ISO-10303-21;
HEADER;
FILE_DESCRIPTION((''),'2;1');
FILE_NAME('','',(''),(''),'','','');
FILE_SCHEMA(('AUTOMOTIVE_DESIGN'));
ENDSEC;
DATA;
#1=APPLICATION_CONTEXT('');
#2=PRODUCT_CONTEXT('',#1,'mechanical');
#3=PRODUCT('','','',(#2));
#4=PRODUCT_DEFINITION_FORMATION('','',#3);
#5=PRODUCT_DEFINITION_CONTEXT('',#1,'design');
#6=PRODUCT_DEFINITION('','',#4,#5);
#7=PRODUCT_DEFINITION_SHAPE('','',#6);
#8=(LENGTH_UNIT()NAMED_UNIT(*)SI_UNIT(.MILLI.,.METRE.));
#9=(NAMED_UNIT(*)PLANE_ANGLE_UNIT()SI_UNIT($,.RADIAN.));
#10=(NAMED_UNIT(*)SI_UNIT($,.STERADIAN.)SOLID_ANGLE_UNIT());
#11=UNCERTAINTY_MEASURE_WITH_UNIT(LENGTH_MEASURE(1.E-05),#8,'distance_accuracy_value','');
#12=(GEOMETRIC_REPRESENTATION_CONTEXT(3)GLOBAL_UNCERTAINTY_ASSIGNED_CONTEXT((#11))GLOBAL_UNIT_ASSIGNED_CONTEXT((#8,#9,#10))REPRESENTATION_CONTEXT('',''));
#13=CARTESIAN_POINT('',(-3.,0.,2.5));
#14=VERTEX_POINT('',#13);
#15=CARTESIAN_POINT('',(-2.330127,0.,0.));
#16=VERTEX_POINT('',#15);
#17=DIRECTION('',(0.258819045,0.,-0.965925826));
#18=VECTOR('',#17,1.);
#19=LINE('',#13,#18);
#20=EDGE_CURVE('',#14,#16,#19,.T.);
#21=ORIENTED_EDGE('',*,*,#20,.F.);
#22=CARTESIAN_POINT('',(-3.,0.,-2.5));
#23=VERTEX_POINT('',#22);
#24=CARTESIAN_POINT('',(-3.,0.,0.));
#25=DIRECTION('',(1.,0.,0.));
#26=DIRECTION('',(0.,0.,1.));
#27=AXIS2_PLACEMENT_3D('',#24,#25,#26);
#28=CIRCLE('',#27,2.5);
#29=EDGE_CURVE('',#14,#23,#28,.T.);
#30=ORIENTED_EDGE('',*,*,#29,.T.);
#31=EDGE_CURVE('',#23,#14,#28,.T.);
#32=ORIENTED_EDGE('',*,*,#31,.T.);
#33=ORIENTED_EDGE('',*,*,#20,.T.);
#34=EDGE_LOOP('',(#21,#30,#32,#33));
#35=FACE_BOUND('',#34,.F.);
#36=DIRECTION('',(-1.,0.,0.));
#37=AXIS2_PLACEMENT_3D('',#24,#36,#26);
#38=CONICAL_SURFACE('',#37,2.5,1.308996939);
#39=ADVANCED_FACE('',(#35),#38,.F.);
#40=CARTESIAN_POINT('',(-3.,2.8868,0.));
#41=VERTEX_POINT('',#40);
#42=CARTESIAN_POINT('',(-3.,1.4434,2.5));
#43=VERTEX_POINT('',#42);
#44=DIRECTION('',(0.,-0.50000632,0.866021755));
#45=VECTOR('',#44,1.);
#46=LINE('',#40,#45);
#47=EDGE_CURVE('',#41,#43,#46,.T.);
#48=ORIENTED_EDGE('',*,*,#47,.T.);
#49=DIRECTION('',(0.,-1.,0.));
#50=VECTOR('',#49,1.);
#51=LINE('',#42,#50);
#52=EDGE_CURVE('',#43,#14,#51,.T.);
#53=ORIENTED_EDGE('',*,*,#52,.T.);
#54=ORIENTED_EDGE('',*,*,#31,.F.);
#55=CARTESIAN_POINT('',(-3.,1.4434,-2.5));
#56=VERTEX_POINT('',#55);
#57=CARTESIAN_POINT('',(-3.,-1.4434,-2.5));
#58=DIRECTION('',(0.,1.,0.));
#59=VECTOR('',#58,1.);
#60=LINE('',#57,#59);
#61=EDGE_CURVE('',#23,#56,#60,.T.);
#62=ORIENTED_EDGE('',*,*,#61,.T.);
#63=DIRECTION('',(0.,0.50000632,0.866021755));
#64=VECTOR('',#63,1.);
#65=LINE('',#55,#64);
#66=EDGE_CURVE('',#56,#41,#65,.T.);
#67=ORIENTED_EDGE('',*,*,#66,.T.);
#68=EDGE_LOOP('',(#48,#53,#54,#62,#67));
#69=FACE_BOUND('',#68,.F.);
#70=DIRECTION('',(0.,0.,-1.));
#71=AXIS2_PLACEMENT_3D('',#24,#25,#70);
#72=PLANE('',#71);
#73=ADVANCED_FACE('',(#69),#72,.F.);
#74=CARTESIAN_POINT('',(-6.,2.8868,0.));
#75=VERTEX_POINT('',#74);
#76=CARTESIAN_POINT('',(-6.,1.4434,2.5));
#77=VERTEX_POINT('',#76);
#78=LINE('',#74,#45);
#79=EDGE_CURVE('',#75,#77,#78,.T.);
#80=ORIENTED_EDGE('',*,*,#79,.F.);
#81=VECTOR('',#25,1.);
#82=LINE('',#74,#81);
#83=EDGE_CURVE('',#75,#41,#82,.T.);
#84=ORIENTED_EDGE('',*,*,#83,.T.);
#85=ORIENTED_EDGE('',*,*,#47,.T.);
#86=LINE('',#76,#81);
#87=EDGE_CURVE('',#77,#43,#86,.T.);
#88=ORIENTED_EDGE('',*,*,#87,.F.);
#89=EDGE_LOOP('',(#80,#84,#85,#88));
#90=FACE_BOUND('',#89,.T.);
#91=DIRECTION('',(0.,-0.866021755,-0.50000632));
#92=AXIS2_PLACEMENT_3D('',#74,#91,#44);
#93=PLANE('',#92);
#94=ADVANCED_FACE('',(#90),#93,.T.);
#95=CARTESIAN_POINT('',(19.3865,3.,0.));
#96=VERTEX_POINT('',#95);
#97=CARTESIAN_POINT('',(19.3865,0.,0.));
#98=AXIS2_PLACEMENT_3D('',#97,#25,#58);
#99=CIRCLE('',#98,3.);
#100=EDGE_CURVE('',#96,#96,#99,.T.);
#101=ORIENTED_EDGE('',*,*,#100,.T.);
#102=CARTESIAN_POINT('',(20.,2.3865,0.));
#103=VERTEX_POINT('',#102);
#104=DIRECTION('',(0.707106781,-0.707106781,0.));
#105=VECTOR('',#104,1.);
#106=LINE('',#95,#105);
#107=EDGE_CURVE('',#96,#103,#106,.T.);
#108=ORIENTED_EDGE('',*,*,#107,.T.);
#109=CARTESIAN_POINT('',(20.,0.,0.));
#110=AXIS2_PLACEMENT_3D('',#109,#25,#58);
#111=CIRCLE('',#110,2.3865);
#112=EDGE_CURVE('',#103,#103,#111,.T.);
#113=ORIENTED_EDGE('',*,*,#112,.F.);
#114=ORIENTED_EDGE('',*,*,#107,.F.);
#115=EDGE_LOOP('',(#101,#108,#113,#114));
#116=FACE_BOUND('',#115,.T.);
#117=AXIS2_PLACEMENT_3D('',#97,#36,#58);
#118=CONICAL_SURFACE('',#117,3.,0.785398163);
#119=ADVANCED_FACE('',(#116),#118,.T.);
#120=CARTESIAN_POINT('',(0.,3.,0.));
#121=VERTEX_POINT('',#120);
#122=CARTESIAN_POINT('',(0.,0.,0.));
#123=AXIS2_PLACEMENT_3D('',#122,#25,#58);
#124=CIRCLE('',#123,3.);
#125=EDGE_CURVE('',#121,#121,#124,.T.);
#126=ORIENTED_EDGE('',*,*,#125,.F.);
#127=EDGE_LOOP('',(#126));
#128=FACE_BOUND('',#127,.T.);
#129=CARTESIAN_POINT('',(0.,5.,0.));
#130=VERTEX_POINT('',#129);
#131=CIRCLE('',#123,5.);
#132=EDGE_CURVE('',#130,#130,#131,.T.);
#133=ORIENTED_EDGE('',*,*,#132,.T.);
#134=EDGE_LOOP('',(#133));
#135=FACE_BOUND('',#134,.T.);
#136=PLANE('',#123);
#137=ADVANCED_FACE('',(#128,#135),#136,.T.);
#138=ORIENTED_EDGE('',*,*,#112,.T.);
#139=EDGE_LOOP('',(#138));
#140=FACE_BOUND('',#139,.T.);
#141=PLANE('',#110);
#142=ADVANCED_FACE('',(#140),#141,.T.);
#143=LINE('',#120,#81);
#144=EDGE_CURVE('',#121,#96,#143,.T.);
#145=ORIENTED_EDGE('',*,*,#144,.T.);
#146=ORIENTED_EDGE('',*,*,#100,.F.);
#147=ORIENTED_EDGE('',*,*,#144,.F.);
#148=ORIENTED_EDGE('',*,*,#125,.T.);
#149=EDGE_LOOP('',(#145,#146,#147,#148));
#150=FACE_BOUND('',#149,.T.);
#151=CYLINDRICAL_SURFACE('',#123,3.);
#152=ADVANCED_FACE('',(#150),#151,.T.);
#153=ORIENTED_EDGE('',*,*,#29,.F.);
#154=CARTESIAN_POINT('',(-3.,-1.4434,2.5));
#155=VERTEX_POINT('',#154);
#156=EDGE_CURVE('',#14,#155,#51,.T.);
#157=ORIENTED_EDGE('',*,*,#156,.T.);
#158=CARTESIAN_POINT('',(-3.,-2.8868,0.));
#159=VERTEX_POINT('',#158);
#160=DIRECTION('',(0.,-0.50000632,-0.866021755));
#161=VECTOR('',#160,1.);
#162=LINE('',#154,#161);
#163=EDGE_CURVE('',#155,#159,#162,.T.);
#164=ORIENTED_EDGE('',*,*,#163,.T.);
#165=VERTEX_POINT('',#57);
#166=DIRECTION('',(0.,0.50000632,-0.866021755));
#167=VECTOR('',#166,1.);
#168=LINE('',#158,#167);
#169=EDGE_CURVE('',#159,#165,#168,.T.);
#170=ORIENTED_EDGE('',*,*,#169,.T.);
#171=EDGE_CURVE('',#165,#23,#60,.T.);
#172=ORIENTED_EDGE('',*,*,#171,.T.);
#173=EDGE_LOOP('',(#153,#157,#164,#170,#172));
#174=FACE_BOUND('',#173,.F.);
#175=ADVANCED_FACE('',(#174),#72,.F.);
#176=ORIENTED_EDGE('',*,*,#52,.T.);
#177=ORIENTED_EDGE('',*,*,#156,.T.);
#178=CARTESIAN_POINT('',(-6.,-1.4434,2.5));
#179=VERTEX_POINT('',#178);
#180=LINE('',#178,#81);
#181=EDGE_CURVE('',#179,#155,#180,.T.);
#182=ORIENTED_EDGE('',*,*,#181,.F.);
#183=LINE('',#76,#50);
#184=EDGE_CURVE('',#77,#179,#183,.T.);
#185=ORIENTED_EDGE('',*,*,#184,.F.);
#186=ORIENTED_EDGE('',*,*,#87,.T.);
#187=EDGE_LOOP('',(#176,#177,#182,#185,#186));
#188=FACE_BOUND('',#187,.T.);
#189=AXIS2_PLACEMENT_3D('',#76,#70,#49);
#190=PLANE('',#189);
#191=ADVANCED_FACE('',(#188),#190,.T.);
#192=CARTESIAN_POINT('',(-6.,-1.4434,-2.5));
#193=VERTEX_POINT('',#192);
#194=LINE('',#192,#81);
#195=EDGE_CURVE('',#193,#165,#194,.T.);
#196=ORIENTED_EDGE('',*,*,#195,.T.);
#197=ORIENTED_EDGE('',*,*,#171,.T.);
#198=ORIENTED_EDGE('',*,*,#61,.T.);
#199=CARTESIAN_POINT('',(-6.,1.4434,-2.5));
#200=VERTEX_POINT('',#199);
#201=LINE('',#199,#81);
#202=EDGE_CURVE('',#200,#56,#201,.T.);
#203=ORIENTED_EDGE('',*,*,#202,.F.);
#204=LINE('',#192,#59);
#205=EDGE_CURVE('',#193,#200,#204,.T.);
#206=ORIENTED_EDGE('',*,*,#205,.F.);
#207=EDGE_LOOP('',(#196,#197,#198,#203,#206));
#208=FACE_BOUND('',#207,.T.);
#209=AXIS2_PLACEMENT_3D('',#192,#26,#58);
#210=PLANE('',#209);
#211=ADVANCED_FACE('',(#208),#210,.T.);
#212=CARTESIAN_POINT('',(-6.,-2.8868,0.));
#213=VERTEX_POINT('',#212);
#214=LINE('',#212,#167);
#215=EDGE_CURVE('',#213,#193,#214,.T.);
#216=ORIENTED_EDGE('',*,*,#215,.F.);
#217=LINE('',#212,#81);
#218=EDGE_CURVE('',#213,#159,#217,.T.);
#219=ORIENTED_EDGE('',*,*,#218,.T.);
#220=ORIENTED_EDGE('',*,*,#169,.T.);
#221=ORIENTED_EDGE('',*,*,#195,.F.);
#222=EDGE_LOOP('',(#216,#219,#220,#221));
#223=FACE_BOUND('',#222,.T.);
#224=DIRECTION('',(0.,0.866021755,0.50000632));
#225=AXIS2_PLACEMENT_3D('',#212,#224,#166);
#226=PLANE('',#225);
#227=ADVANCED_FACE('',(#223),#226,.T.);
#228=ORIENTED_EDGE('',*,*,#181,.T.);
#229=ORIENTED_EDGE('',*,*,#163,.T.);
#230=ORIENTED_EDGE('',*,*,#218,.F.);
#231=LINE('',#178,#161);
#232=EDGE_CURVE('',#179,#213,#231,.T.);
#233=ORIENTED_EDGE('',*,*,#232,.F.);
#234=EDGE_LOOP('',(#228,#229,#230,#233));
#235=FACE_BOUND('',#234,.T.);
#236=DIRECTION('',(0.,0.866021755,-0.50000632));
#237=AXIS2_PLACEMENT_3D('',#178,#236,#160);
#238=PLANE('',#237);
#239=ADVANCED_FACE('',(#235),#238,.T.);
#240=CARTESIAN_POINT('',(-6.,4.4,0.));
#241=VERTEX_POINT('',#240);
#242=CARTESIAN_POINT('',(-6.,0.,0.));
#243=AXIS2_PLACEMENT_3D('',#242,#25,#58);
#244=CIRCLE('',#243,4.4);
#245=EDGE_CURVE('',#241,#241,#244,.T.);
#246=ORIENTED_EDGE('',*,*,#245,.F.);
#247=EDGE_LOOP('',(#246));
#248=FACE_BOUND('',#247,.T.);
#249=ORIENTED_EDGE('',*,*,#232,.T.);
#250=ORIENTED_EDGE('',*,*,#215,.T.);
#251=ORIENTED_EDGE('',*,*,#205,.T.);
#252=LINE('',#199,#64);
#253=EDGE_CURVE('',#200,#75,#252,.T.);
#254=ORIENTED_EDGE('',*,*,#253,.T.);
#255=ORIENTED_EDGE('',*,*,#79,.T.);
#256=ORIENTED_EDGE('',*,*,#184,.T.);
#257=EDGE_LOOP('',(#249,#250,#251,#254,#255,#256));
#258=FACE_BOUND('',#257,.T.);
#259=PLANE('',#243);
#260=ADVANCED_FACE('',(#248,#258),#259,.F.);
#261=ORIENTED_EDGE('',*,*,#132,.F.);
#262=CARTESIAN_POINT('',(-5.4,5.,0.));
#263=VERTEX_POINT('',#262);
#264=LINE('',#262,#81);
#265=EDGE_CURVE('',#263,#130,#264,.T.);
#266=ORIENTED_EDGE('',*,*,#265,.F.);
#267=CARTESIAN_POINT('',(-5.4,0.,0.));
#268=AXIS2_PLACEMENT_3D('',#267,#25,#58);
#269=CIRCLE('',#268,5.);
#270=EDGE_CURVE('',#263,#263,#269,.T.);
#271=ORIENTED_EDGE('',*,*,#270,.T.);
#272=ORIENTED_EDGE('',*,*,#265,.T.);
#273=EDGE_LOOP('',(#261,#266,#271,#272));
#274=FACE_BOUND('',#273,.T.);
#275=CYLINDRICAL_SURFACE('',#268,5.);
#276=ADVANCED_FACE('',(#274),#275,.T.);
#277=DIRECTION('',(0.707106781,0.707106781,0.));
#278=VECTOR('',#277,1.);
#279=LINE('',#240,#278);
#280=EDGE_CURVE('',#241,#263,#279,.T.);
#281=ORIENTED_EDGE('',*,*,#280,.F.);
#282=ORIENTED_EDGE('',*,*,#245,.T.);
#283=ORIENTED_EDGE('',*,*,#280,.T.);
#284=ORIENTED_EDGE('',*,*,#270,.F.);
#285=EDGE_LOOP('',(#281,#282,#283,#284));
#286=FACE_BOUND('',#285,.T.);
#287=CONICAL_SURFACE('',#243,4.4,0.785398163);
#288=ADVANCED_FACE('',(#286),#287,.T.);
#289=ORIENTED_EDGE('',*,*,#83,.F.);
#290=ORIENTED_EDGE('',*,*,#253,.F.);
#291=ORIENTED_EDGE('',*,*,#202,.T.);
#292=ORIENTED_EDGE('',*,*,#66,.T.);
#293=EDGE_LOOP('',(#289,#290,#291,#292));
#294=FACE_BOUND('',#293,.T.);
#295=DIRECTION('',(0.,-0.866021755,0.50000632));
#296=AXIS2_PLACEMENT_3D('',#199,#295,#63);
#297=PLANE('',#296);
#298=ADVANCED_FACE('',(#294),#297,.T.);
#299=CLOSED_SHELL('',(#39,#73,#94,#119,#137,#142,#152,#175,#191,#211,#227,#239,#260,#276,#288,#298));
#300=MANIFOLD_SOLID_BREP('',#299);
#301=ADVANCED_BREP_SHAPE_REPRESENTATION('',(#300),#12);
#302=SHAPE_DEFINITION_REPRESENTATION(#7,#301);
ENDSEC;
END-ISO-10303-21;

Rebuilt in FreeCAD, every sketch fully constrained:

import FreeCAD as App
import Part
import Sketcher
Q = App.Units.Quantity


def add_polygon(sketch, points):
    """Adds a closed chain of lines whose ends are joined by coincident constraints."""
    first, n = sketch.GeometryCount, len(points)
    for a, b in zip(points, points[1:] + points[:1]):
        sketch.addGeometry(Part.LineSegment(App.Vector(*a, 0), App.Vector(*b, 0)), False)
    for i in range(n):
        sketch.addConstraint(Sketcher.Constraint("Coincident", first + i, 2, first + (i + 1) % n, 1))

doc = App.newDocument("Part")
params = doc.addObject("Spreadsheet::Sheet", "Params")
for row, (alias, value) in enumerate([
    ("sketch1_width", "26 mm"),
    ("sketch1_height", "2 mm"),
    ("sketch1_width2", "5.4 mm"),
    ("sketch1_height2", "4.4 mm"),
    ("revolution_angle", "360 deg"),
    ("sketch2_diameter", "5 mm"),
    ("hole_diameter", "5 mm"),
    ("hole_depth", "3 mm"),
    ("pocket1_length", "3 mm"),
], start=1):
    params.set(f"A{row}", alias)
    params.set(f"B{row}", "=" + value)
    params.setAlias(f"B{row}", alias)

body = doc.addObject("PartDesign::Body", "Body")

sketch1 = body.newObject("Sketcher::SketchObject", "Sketch")
sketch1.AttachmentSupport = (doc.getObject("XY_Plane"), [""])
sketch1.MapMode = "FlatFace"
add_polygon(sketch1, [(-6, 0), (20, 0), (20, 2.4), (19.4, 3), (0, 3), (0, 5), (-5.4, 5), (-6, 4.4)])
sketch1.addConstraint([
    Sketcher.Constraint("Horizontal", 0),
    Sketcher.Constraint("Vertical", 1),
    Sketcher.Constraint("Horizontal", 3),
    Sketcher.Constraint("Vertical", 4),
    Sketcher.Constraint("Horizontal", 5),
    Sketcher.Constraint("Vertical", 7),
    Sketcher.Constraint("PointOnObject", 0, 2, -1),
    Sketcher.Constraint("PointOnObject", 3, 2, -2),
    Sketcher.Constraint("Perpendicular", 2, 6),
    Sketcher.Constraint("DistanceX", 0, 1, 0, 2, 26.0),
    Sketcher.Constraint("DistanceY", 4, 1, 4, 2, 2.0),
    Sketcher.Constraint("Angle", 2, Q("135 deg")),
    Sketcher.Constraint("DistanceX", 5, 2, 5, 1, 5.4),
    Sketcher.Constraint("DistanceY", 7, 2, 7, 1, 4.4),
    Sketcher.Constraint("DistanceX", -1, 1, 0, 2, 20.0),
    Sketcher.Constraint("DistanceX", 3, 2, 3, 1, 19.3865),
])
sketch1.setExpression("Constraints[17]", "Params.sketch1_width")
sketch1.setExpression("Constraints[18]", "Params.sketch1_height")
sketch1.setExpression("Constraints[20]", "Params.sketch1_width2")
sketch1.setExpression("Constraints[21]", "Params.sketch1_height2")
revolution = body.newObject("PartDesign::Revolution", "Revolution")
revolution.Profile = sketch1
revolution.ReferenceAxis = (sketch1, ["H_Axis"])
revolution.setExpression("Angle", "Params.revolution_angle")

sketch2 = body.newObject("Sketcher::SketchObject", "Sketch001")
sketch2.AttachmentSupport = (doc.getObject("YZ_Plane"), [""])
sketch2.MapMode = "FlatFace"
sketch2.AttachmentOffset = App.Placement(App.Vector(0, 0, -6), App.Rotation())
sketch2.addGeometry(Part.Circle(App.Vector(0, 0, 0), App.Vector(0, 0, 1), 2.5), False)
sketch2.addConstraint([
    Sketcher.Constraint("Coincident", 0, 3, -1, 1),
    Sketcher.Constraint("Diameter", 0, 5.0),
])
sketch2.setExpression("Constraints[1]", "Params.sketch2_diameter")
doc.recompute()
hole = body.newObject("PartDesign::Hole", "Hole")
hole.Profile = sketch2
hole.ThreadType = "None"
hole.setExpression("Diameter", "Params.hole_diameter")
hole.DepthType = "Dimension"
hole.setExpression("Depth", "Params.hole_depth")
hole.DrillPoint = "Angled"
hole.DrillPointAngle = 150
hole.Reversed = True

sketch3 = body.newObject("Sketcher::SketchObject", "Sketch002")
sketch3.AttachmentSupport = (doc.getObject("YZ_Plane"), [""])
sketch3.MapMode = "FlatFace"
sketch3.AttachmentOffset = App.Placement(App.Vector(0, 0, -6), App.Rotation())
add_polygon(sketch3, [(1.4, 2.5), (-1.4, 2.5), (-2.9, 0), (-1.4, -2.5), (1.4, -2.5), (2.9, 0)])
sketch3.addConstraint([
    Sketcher.Constraint("Horizontal", 0),
    Sketcher.Constraint("Horizontal", 3),
    Sketcher.Constraint("Symmetric", 0, 2, 3, 2, -1, 1),
    Sketcher.Constraint("Symmetric", 1, 2, 4, 2, -1, 1),
    Sketcher.Constraint("PointOnObject", 1, 2, -1),
    Sketcher.Constraint("Parallel", 2, 5),
    Sketcher.Constraint("Vertical", 0, 2, 2, 2),
    Sketcher.Constraint("Angle", 1, Q("-120.0004 deg")),
    Sketcher.Constraint("DistanceY", 2, 2, 0, 2, 5.0),
    Sketcher.Constraint("DistanceX", 0, 2, 0, 1, 2.8868),
])
pocket1 = body.newObject("PartDesign::Pocket", "Pocket")
pocket1.Profile = sketch3
pocket1.setExpression("Length", "Params.pocket1_length")
pocket1.Reversed = True

doc.recompute()
